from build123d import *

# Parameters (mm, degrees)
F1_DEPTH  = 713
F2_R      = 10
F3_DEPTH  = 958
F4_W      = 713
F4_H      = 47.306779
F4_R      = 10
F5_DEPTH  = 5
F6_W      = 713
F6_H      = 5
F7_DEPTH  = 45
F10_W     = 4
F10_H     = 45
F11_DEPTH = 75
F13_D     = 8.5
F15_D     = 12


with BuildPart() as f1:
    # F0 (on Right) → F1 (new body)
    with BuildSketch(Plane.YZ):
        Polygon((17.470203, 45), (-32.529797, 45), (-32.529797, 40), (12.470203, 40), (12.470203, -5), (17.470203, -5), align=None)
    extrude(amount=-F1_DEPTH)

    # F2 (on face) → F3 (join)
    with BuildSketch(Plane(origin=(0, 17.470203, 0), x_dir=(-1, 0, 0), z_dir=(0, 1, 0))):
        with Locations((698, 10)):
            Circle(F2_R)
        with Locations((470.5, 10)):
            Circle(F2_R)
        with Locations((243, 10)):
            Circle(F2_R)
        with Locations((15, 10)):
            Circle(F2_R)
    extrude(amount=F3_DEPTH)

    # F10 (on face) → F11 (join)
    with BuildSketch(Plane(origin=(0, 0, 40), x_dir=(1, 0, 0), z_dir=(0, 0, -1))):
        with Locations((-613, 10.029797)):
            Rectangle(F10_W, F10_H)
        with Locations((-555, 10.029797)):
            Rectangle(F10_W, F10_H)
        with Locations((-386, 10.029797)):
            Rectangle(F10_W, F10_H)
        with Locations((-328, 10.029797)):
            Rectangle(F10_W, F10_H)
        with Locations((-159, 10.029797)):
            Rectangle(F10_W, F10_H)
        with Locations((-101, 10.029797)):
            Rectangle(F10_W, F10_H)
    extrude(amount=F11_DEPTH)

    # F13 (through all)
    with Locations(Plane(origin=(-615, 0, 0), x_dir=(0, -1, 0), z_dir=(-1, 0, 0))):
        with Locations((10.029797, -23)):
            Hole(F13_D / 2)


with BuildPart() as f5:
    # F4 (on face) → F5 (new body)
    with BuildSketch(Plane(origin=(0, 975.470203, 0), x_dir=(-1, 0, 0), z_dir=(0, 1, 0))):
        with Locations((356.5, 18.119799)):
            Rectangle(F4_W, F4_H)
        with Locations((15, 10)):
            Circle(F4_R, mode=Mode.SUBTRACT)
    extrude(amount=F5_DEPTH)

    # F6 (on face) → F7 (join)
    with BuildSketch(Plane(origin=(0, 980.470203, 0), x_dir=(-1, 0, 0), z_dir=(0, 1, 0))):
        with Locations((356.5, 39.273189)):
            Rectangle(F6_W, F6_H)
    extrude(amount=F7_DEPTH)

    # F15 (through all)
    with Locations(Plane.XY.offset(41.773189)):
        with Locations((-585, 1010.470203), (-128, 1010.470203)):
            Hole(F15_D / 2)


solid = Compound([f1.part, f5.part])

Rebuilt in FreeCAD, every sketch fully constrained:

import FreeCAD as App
import Part
import Sketcher
Q = App.Units.Quantity


def add_polygon(sketch, points):
    """Adds a closed chain of lines whose ends are joined by coincident constraints."""
    first, n = sketch.GeometryCount, len(points)
    for a, b in zip(points, points[1:] + points[:1]):
        sketch.addGeometry(Part.LineSegment(App.Vector(*a, 0), App.Vector(*b, 0)), False)
    for i in range(n):
        sketch.addConstraint(Sketcher.Constraint("Coincident", first + i, 2, first + (i + 1) % n, 1))

doc = App.newDocument("Part")
body = doc.addObject("PartDesign::Body", "Body")

# Sketch on YZ plane
sketch1 = doc.addObject("Sketcher::SketchObject", "Sketch")
body.addObject(sketch1)
sketch1.AttachmentSupport = (doc.YZ_Plane, [""])
sketch1.MapMode = "FlatFace"
add_polygon(sketch1, [(17, 45), (-33, 45), (-33, 40), (12, 40), (12, -5), (17, -5)])  # lines 0-5
sketch1.addConstraint([
    Sketcher.Constraint("Horizontal", 0),
    Sketcher.Constraint("Vertical", 1),
    Sketcher.Constraint("Horizontal", 2),
    Sketcher.Constraint("Vertical", 3),
    Sketcher.Constraint("Horizontal", 4),
    Sketcher.Constraint("Vertical", 5),
    Sketcher.Constraint("Equal", 4, 1),
    Sketcher.Constraint("Equal", 2, 3),
    Sketcher.Constraint("DistanceX", 0, 2, 0, 1, Q("50 mm")),
    Sketcher.Constraint("DistanceX", 2, 1, 2, 2, Q("45 mm")),
    Sketcher.Constraint("DistanceY", -1, 1, 0, 2, Q("45 mm")),
    Sketcher.Constraint("DistanceX", 0, 2, -1, 1, Q("32.529797 mm")),
])
pad1 = doc.addObject("PartDesign::Pad", "Pad")
body.addObject(pad1)
pad1.Profile = sketch1
pad1.Length = 713
pad1.Reversed = True

# Sketch on XZ plane
sketch2 = doc.addObject("Sketcher::SketchObject", "Sketch001")
body.addObject(sketch2)
sketch2.AttachmentSupport = (doc.XZ_Plane, [""])
sketch2.MapMode = "FlatFace"
sketch2.AttachmentOffset = App.Placement(App.Vector(0, 0, -17.470203), App.Rotation())
sketch2.addGeometry([
    Part.Circle(App.Vector(-698, 10, 0), App.Vector(0, 0, 1), 10),
    Part.Circle(App.Vector(-470, 10, 0), App.Vector(0, 0, 1), 10),
    Part.Circle(App.Vector(-243, 10, 0), App.Vector(0, 0, 1), 10),
    Part.Circle(App.Vector(-15, 10, 0), App.Vector(0, 0, 1), 10),
], False)
sketch2.addConstraint([
    Sketcher.Constraint("Equal", 0, 1),
    Sketcher.Constraint("Equal", 1, 2),
    Sketcher.Constraint("Equal", 2, 3),
    Sketcher.Constraint("Horizontal", 0, 3, 1, 3),
    Sketcher.Constraint("Horizontal", 1, 3, 2, 3),
    Sketcher.Constraint("Horizontal", 2, 3, 3, 3),
    Sketcher.Constraint("Diameter", 0, Q("20 mm")),
    Sketcher.Constraint("DistanceX", 0, 3, -1, 1, Q("698 mm")),
    Sketcher.Constraint("DistanceY", -1, 1, 0, 3, Q("10 mm")),
    Sketcher.Constraint("DistanceX", 2, 3, -1, 1, Q("243 mm")),
    Sketcher.Constraint("DistanceX", 3, 3, -1, 1, Q("15 mm")),
    Sketcher.Constraint("DistanceX", 1, 3, -1, 1, Q("470.5 mm")),
])
pad2 = doc.addObject("PartDesign::Pad", "Pad001")
body.addObject(pad2)
pad2.Profile = sketch2
pad2.Length = 958
pad2.Reversed = True

# Sketch on XY plane
sketch3 = doc.addObject("Sketcher::SketchObject", "Sketch002")
body.addObject(sketch3)
sketch3.AttachmentSupport = (doc.XY_Plane, [""])
sketch3.MapMode = "FlatFace"
sketch3.AttachmentOffset = App.Placement(App.Vector(0, 0, 40), App.Rotation())
add_polygon(sketch3, [(-615, -32.5), (-615, 12.5), (-611, 12.5), (-611, -32.5)])  # lines 0-3
add_polygon(sketch3, [(-557, -32.5), (-557, 12.5), (-553, 12.5), (-553, -32.5)])  # lines 4-7
add_polygon(sketch3, [(-388, -32.5), (-388, 12.5), (-384, 12.5), (-384, -32.5)])  # lines 8-11
add_polygon(sketch3, [(-330, -32.5), (-330, 12.5), (-326, 12.5), (-326, -32.5)])  # lines 12-15
add_polygon(sketch3, [(-161, -32.5), (-161, 12.5), (-157, 12.5), (-157, -32.5)])  # lines 16-19
add_polygon(sketch3, [(-103, -32.5), (-103, 12.5), (-99, 12.5), (-99, -32.5)])  # lines 20-23
sketch3.addConstraint([
    Sketcher.Constraint("Vertical", 0),
    Sketcher.Constraint("Horizontal", 1),
    Sketcher.Constraint("Vertical", 2),
    Sketcher.Constraint("Horizontal", 3),
    Sketcher.Constraint("Vertical", 4),
    Sketcher.Constraint("Horizontal", 5),
    Sketcher.Constraint("Vertical", 6),
    Sketcher.Constraint("Horizontal", 7),
    Sketcher.Constraint("Vertical", 8),
    Sketcher.Constraint("Horizontal", 9),
    Sketcher.Constraint("Vertical", 10),
    Sketcher.Constraint("Horizontal", 11),
    Sketcher.Constraint("Vertical", 12),
    Sketcher.Constraint("Horizontal", 13),
    Sketcher.Constraint("Vertical", 14),
    Sketcher.Constraint("Horizontal", 15),
    Sketcher.Constraint("Vertical", 16),
    Sketcher.Constraint("Horizontal", 17),
    Sketcher.Constraint("Vertical", 18),
    Sketcher.Constraint("Horizontal", 19),
    Sketcher.Constraint("Vertical", 20),
    Sketcher.Constraint("Horizontal", 21),
    Sketcher.Constraint("Vertical", 22),
    Sketcher.Constraint("Horizontal", 23),
    Sketcher.Constraint("Horizontal", 1, 2, 4, 2),
    Sketcher.Constraint("Horizontal", 3, 2, 6, 2),
    Sketcher.Constraint("Horizontal", 5, 2, 8, 2),
    Sketcher.Constraint("Horizontal", 7, 2, 10, 2),
    Sketcher.Constraint("Horizontal", 9, 2, 12, 2),
    Sketcher.Constraint("Horizontal", 11, 2, 14, 2),
    Sketcher.Constraint("Horizontal", 13, 2, 16, 2),
    Sketcher.Constraint("Horizontal", 15, 2, 18, 2),
    Sketcher.Constraint("Horizontal", 17, 2, 20, 2),
    Sketcher.Constraint("Horizontal", 19, 2, 22, 2),
    Sketcher.Constraint("Equal", 3, 5),
    Sketcher.Constraint("Equal", 7, 9),
    Sketcher.Constraint("Equal", 11, 13),
    Sketcher.Constraint("Equal", 15, 17),
    Sketcher.Constraint("Equal", 19, 21),
    Sketcher.Constraint("DistanceX", 1, 1, 1, 2, Q("4 mm")),
    Sketcher.Constraint("DistanceY", 0, 1, 0, 2, Q("45 mm")),
    Sketcher.Constraint("DistanceX", 0, 2, -1, 1, Q("615 mm")),
    Sketcher.Constraint("DistanceX", 4, 2, -1, 1, Q("557 mm")),
    Sketcher.Constraint("DistanceX", 8, 2, -1, 1, Q("388 mm")),
    Sketcher.Constraint("DistanceX", 12, 2, -1, 1, Q("330 mm")),
    Sketcher.Constraint("DistanceX", 16, 2, -1, 1, Q("161 mm")),
    Sketcher.Constraint("DistanceX", 20, 2, -1, 1, Q("103 mm")),
    Sketcher.Constraint("DistanceY", -1, 1, 0, 2, Q("12.470203 mm")),
])
pad3 = doc.addObject("PartDesign::Pad", "Pad002")
body.addObject(pad3)
pad3.Profile = sketch3
pad3.Length = 75
pad3.Reversed = True

# Sketch on YZ plane
sketch4 = doc.addObject("Sketcher::SketchObject", "Sketch003")
body.addObject(sketch4)
sketch4.AttachmentSupport = (doc.YZ_Plane, [""])
sketch4.MapMode = "FlatFace"
sketch4.AttachmentOffset = App.Placement(App.Vector(0, 0, -615), App.Rotation())
sketch4.addGeometry(Part.Circle(App.Vector(-10, -23, 0), App.Vector(0, 0, 1), 4.2), False)
sketch4.addConstraint([
    Sketcher.Constraint("Diameter", 0, Q("8.5 mm")),
    Sketcher.Constraint("DistanceY", 0, 3, -1, 1, Q("23 mm")),
    Sketcher.Constraint("DistanceX", 0, 3, -1, 1, Q("10.029797 mm")),
])
doc.recompute()
hole = doc.addObject("PartDesign::Hole", "Hole")
body.addObject(hole)
hole.Profile = sketch4
hole.ThreadType = "None"
hole.Diameter = 8.5
hole.DepthType = "ThroughAll"
hole.Reversed = True
body2 = doc.addObject("PartDesign::Body", "Body001")

# Sketch on XZ plane
sketch5 = doc.addObject("Sketcher::SketchObject", "Sketch004")
body2.addObject(sketch5)
sketch5.AttachmentSupport = (doc.getObject("XZ_Plane001"), [""])
sketch5.MapMode = "FlatFace"
sketch5.AttachmentOffset = App.Placement(App.Vector(0, 0, -975.470203), App.Rotation())
add_polygon(sketch5, [(0, 42), (0, -6), (-713, -6), (-713, 42)])  # lines 0-3
sketch5.addGeometry(Part.Circle(App.Vector(-15, 10, 0), App.Vector(0, 0, 1), 10), False)  # 4
sketch5.addConstraint([
    Sketcher.Constraint("Vertical", 0),
    Sketcher.Constraint("Horizontal", 1),
    Sketcher.Constraint("Vertical", 2),
    Sketcher.Constraint("Horizontal", 3),
    Sketcher.Constraint("PointOnObject", 0, 2, -2),
    Sketcher.Constraint("Diameter", 4, Q("20 mm")),
    Sketcher.Constraint("DistanceX", 1, 2, 1, 1, Q("713 mm")),
    Sketcher.Constraint("DistanceX", 4, 3, -1, 1, Q("15 mm")),
    Sketcher.Constraint("DistanceY", -1, 1, 4, 3, Q("10 mm")),
    Sketcher.Constraint("DistanceY", 0, 2, 0, 1, Q("47.306779 mm")),
    Sketcher.Constraint("DistanceY", 0, 2, -1, 1, Q("5.53359 mm")),
])
pad4 = doc.addObject("PartDesign::Pad", "Pad003")
body2.addObject(pad4)
pad4.Profile = sketch5
pad4.Length = 5
pad4.Reversed = True

# Sketch on XZ plane
sketch6 = doc.addObject("Sketcher::SketchObject", "Sketch005")
body2.addObject(sketch6)
sketch6.AttachmentSupport = (doc.getObject("XZ_Plane001"), [""])
sketch6.MapMode = "FlatFace"
sketch6.AttachmentOffset = App.Placement(App.Vector(0, 0, -980.470203), App.Rotation())
add_polygon(sketch6, [(0, 42), (0, 37), (-713, 37), (-713, 42)])  # lines 0-3
sketch6.addConstraint([
    Sketcher.Constraint("Vertical", 0),
    Sketcher.Constraint("Horizontal", 1),
    Sketcher.Constraint("Vertical", 2),
    Sketcher.Constraint("Horizontal", 3),
    Sketcher.Constraint("PointOnObject", 0, 2, -2),
    Sketcher.Constraint("DistanceX", 1, 2, 1, 1, Q("713 mm")),
    Sketcher.Constraint("DistanceY", 0, 2, 0, 1, Q("5 mm")),
    Sketcher.Constraint("DistanceY", -1, 1, 0, 2, Q("36.773189 mm")),
])
pad5 = doc.addObject("PartDesign::Pad", "Pad004")
body2.addObject(pad5)
pad5.Profile = sketch6
pad5.Length = 45
pad5.Reversed = True

# Sketch on XY plane
sketch7 = doc.addObject("Sketcher::SketchObject", "Sketch006")
body2.addObject(sketch7)
sketch7.AttachmentSupport = (doc.getObject("XY_Plane001"), [""])
sketch7.MapMode = "FlatFace"
sketch7.AttachmentOffset = App.Placement(App.Vector(0, 0, 41.773189), App.Rotation())
sketch7.addGeometry([
    Part.Circle(App.Vector(-585, 1010, 0), App.Vector(0, 0, 1), 6),
    Part.Circle(App.Vector(-128, 1010, 0), App.Vector(0, 0, 1), 6),
], False)
sketch7.addConstraint([
    Sketcher.Constraint("Equal", 0, 1),
    Sketcher.Constraint("Horizontal", 0, 3, 1, 3),
    Sketcher.Constraint("Diameter", 0, Q("12 mm")),
    Sketcher.Constraint("DistanceX", 0, 3, -1, 1, Q("585 mm")),
    Sketcher.Constraint("DistanceX", 1, 3, -1, 1, Q("128 mm")),
    Sketcher.Constraint("DistanceY", -1, 1, 0, 3, Q("1010.470203 mm")),
])
doc.recompute()
hole2 = doc.addObject("PartDesign::Hole", "Hole001")
body2.addObject(hole2)
hole2.Profile = sketch7
hole2.ThreadType = "None"
hole2.Diameter = 12
hole2.DepthType = "ThroughAll"

doc.recompute()
